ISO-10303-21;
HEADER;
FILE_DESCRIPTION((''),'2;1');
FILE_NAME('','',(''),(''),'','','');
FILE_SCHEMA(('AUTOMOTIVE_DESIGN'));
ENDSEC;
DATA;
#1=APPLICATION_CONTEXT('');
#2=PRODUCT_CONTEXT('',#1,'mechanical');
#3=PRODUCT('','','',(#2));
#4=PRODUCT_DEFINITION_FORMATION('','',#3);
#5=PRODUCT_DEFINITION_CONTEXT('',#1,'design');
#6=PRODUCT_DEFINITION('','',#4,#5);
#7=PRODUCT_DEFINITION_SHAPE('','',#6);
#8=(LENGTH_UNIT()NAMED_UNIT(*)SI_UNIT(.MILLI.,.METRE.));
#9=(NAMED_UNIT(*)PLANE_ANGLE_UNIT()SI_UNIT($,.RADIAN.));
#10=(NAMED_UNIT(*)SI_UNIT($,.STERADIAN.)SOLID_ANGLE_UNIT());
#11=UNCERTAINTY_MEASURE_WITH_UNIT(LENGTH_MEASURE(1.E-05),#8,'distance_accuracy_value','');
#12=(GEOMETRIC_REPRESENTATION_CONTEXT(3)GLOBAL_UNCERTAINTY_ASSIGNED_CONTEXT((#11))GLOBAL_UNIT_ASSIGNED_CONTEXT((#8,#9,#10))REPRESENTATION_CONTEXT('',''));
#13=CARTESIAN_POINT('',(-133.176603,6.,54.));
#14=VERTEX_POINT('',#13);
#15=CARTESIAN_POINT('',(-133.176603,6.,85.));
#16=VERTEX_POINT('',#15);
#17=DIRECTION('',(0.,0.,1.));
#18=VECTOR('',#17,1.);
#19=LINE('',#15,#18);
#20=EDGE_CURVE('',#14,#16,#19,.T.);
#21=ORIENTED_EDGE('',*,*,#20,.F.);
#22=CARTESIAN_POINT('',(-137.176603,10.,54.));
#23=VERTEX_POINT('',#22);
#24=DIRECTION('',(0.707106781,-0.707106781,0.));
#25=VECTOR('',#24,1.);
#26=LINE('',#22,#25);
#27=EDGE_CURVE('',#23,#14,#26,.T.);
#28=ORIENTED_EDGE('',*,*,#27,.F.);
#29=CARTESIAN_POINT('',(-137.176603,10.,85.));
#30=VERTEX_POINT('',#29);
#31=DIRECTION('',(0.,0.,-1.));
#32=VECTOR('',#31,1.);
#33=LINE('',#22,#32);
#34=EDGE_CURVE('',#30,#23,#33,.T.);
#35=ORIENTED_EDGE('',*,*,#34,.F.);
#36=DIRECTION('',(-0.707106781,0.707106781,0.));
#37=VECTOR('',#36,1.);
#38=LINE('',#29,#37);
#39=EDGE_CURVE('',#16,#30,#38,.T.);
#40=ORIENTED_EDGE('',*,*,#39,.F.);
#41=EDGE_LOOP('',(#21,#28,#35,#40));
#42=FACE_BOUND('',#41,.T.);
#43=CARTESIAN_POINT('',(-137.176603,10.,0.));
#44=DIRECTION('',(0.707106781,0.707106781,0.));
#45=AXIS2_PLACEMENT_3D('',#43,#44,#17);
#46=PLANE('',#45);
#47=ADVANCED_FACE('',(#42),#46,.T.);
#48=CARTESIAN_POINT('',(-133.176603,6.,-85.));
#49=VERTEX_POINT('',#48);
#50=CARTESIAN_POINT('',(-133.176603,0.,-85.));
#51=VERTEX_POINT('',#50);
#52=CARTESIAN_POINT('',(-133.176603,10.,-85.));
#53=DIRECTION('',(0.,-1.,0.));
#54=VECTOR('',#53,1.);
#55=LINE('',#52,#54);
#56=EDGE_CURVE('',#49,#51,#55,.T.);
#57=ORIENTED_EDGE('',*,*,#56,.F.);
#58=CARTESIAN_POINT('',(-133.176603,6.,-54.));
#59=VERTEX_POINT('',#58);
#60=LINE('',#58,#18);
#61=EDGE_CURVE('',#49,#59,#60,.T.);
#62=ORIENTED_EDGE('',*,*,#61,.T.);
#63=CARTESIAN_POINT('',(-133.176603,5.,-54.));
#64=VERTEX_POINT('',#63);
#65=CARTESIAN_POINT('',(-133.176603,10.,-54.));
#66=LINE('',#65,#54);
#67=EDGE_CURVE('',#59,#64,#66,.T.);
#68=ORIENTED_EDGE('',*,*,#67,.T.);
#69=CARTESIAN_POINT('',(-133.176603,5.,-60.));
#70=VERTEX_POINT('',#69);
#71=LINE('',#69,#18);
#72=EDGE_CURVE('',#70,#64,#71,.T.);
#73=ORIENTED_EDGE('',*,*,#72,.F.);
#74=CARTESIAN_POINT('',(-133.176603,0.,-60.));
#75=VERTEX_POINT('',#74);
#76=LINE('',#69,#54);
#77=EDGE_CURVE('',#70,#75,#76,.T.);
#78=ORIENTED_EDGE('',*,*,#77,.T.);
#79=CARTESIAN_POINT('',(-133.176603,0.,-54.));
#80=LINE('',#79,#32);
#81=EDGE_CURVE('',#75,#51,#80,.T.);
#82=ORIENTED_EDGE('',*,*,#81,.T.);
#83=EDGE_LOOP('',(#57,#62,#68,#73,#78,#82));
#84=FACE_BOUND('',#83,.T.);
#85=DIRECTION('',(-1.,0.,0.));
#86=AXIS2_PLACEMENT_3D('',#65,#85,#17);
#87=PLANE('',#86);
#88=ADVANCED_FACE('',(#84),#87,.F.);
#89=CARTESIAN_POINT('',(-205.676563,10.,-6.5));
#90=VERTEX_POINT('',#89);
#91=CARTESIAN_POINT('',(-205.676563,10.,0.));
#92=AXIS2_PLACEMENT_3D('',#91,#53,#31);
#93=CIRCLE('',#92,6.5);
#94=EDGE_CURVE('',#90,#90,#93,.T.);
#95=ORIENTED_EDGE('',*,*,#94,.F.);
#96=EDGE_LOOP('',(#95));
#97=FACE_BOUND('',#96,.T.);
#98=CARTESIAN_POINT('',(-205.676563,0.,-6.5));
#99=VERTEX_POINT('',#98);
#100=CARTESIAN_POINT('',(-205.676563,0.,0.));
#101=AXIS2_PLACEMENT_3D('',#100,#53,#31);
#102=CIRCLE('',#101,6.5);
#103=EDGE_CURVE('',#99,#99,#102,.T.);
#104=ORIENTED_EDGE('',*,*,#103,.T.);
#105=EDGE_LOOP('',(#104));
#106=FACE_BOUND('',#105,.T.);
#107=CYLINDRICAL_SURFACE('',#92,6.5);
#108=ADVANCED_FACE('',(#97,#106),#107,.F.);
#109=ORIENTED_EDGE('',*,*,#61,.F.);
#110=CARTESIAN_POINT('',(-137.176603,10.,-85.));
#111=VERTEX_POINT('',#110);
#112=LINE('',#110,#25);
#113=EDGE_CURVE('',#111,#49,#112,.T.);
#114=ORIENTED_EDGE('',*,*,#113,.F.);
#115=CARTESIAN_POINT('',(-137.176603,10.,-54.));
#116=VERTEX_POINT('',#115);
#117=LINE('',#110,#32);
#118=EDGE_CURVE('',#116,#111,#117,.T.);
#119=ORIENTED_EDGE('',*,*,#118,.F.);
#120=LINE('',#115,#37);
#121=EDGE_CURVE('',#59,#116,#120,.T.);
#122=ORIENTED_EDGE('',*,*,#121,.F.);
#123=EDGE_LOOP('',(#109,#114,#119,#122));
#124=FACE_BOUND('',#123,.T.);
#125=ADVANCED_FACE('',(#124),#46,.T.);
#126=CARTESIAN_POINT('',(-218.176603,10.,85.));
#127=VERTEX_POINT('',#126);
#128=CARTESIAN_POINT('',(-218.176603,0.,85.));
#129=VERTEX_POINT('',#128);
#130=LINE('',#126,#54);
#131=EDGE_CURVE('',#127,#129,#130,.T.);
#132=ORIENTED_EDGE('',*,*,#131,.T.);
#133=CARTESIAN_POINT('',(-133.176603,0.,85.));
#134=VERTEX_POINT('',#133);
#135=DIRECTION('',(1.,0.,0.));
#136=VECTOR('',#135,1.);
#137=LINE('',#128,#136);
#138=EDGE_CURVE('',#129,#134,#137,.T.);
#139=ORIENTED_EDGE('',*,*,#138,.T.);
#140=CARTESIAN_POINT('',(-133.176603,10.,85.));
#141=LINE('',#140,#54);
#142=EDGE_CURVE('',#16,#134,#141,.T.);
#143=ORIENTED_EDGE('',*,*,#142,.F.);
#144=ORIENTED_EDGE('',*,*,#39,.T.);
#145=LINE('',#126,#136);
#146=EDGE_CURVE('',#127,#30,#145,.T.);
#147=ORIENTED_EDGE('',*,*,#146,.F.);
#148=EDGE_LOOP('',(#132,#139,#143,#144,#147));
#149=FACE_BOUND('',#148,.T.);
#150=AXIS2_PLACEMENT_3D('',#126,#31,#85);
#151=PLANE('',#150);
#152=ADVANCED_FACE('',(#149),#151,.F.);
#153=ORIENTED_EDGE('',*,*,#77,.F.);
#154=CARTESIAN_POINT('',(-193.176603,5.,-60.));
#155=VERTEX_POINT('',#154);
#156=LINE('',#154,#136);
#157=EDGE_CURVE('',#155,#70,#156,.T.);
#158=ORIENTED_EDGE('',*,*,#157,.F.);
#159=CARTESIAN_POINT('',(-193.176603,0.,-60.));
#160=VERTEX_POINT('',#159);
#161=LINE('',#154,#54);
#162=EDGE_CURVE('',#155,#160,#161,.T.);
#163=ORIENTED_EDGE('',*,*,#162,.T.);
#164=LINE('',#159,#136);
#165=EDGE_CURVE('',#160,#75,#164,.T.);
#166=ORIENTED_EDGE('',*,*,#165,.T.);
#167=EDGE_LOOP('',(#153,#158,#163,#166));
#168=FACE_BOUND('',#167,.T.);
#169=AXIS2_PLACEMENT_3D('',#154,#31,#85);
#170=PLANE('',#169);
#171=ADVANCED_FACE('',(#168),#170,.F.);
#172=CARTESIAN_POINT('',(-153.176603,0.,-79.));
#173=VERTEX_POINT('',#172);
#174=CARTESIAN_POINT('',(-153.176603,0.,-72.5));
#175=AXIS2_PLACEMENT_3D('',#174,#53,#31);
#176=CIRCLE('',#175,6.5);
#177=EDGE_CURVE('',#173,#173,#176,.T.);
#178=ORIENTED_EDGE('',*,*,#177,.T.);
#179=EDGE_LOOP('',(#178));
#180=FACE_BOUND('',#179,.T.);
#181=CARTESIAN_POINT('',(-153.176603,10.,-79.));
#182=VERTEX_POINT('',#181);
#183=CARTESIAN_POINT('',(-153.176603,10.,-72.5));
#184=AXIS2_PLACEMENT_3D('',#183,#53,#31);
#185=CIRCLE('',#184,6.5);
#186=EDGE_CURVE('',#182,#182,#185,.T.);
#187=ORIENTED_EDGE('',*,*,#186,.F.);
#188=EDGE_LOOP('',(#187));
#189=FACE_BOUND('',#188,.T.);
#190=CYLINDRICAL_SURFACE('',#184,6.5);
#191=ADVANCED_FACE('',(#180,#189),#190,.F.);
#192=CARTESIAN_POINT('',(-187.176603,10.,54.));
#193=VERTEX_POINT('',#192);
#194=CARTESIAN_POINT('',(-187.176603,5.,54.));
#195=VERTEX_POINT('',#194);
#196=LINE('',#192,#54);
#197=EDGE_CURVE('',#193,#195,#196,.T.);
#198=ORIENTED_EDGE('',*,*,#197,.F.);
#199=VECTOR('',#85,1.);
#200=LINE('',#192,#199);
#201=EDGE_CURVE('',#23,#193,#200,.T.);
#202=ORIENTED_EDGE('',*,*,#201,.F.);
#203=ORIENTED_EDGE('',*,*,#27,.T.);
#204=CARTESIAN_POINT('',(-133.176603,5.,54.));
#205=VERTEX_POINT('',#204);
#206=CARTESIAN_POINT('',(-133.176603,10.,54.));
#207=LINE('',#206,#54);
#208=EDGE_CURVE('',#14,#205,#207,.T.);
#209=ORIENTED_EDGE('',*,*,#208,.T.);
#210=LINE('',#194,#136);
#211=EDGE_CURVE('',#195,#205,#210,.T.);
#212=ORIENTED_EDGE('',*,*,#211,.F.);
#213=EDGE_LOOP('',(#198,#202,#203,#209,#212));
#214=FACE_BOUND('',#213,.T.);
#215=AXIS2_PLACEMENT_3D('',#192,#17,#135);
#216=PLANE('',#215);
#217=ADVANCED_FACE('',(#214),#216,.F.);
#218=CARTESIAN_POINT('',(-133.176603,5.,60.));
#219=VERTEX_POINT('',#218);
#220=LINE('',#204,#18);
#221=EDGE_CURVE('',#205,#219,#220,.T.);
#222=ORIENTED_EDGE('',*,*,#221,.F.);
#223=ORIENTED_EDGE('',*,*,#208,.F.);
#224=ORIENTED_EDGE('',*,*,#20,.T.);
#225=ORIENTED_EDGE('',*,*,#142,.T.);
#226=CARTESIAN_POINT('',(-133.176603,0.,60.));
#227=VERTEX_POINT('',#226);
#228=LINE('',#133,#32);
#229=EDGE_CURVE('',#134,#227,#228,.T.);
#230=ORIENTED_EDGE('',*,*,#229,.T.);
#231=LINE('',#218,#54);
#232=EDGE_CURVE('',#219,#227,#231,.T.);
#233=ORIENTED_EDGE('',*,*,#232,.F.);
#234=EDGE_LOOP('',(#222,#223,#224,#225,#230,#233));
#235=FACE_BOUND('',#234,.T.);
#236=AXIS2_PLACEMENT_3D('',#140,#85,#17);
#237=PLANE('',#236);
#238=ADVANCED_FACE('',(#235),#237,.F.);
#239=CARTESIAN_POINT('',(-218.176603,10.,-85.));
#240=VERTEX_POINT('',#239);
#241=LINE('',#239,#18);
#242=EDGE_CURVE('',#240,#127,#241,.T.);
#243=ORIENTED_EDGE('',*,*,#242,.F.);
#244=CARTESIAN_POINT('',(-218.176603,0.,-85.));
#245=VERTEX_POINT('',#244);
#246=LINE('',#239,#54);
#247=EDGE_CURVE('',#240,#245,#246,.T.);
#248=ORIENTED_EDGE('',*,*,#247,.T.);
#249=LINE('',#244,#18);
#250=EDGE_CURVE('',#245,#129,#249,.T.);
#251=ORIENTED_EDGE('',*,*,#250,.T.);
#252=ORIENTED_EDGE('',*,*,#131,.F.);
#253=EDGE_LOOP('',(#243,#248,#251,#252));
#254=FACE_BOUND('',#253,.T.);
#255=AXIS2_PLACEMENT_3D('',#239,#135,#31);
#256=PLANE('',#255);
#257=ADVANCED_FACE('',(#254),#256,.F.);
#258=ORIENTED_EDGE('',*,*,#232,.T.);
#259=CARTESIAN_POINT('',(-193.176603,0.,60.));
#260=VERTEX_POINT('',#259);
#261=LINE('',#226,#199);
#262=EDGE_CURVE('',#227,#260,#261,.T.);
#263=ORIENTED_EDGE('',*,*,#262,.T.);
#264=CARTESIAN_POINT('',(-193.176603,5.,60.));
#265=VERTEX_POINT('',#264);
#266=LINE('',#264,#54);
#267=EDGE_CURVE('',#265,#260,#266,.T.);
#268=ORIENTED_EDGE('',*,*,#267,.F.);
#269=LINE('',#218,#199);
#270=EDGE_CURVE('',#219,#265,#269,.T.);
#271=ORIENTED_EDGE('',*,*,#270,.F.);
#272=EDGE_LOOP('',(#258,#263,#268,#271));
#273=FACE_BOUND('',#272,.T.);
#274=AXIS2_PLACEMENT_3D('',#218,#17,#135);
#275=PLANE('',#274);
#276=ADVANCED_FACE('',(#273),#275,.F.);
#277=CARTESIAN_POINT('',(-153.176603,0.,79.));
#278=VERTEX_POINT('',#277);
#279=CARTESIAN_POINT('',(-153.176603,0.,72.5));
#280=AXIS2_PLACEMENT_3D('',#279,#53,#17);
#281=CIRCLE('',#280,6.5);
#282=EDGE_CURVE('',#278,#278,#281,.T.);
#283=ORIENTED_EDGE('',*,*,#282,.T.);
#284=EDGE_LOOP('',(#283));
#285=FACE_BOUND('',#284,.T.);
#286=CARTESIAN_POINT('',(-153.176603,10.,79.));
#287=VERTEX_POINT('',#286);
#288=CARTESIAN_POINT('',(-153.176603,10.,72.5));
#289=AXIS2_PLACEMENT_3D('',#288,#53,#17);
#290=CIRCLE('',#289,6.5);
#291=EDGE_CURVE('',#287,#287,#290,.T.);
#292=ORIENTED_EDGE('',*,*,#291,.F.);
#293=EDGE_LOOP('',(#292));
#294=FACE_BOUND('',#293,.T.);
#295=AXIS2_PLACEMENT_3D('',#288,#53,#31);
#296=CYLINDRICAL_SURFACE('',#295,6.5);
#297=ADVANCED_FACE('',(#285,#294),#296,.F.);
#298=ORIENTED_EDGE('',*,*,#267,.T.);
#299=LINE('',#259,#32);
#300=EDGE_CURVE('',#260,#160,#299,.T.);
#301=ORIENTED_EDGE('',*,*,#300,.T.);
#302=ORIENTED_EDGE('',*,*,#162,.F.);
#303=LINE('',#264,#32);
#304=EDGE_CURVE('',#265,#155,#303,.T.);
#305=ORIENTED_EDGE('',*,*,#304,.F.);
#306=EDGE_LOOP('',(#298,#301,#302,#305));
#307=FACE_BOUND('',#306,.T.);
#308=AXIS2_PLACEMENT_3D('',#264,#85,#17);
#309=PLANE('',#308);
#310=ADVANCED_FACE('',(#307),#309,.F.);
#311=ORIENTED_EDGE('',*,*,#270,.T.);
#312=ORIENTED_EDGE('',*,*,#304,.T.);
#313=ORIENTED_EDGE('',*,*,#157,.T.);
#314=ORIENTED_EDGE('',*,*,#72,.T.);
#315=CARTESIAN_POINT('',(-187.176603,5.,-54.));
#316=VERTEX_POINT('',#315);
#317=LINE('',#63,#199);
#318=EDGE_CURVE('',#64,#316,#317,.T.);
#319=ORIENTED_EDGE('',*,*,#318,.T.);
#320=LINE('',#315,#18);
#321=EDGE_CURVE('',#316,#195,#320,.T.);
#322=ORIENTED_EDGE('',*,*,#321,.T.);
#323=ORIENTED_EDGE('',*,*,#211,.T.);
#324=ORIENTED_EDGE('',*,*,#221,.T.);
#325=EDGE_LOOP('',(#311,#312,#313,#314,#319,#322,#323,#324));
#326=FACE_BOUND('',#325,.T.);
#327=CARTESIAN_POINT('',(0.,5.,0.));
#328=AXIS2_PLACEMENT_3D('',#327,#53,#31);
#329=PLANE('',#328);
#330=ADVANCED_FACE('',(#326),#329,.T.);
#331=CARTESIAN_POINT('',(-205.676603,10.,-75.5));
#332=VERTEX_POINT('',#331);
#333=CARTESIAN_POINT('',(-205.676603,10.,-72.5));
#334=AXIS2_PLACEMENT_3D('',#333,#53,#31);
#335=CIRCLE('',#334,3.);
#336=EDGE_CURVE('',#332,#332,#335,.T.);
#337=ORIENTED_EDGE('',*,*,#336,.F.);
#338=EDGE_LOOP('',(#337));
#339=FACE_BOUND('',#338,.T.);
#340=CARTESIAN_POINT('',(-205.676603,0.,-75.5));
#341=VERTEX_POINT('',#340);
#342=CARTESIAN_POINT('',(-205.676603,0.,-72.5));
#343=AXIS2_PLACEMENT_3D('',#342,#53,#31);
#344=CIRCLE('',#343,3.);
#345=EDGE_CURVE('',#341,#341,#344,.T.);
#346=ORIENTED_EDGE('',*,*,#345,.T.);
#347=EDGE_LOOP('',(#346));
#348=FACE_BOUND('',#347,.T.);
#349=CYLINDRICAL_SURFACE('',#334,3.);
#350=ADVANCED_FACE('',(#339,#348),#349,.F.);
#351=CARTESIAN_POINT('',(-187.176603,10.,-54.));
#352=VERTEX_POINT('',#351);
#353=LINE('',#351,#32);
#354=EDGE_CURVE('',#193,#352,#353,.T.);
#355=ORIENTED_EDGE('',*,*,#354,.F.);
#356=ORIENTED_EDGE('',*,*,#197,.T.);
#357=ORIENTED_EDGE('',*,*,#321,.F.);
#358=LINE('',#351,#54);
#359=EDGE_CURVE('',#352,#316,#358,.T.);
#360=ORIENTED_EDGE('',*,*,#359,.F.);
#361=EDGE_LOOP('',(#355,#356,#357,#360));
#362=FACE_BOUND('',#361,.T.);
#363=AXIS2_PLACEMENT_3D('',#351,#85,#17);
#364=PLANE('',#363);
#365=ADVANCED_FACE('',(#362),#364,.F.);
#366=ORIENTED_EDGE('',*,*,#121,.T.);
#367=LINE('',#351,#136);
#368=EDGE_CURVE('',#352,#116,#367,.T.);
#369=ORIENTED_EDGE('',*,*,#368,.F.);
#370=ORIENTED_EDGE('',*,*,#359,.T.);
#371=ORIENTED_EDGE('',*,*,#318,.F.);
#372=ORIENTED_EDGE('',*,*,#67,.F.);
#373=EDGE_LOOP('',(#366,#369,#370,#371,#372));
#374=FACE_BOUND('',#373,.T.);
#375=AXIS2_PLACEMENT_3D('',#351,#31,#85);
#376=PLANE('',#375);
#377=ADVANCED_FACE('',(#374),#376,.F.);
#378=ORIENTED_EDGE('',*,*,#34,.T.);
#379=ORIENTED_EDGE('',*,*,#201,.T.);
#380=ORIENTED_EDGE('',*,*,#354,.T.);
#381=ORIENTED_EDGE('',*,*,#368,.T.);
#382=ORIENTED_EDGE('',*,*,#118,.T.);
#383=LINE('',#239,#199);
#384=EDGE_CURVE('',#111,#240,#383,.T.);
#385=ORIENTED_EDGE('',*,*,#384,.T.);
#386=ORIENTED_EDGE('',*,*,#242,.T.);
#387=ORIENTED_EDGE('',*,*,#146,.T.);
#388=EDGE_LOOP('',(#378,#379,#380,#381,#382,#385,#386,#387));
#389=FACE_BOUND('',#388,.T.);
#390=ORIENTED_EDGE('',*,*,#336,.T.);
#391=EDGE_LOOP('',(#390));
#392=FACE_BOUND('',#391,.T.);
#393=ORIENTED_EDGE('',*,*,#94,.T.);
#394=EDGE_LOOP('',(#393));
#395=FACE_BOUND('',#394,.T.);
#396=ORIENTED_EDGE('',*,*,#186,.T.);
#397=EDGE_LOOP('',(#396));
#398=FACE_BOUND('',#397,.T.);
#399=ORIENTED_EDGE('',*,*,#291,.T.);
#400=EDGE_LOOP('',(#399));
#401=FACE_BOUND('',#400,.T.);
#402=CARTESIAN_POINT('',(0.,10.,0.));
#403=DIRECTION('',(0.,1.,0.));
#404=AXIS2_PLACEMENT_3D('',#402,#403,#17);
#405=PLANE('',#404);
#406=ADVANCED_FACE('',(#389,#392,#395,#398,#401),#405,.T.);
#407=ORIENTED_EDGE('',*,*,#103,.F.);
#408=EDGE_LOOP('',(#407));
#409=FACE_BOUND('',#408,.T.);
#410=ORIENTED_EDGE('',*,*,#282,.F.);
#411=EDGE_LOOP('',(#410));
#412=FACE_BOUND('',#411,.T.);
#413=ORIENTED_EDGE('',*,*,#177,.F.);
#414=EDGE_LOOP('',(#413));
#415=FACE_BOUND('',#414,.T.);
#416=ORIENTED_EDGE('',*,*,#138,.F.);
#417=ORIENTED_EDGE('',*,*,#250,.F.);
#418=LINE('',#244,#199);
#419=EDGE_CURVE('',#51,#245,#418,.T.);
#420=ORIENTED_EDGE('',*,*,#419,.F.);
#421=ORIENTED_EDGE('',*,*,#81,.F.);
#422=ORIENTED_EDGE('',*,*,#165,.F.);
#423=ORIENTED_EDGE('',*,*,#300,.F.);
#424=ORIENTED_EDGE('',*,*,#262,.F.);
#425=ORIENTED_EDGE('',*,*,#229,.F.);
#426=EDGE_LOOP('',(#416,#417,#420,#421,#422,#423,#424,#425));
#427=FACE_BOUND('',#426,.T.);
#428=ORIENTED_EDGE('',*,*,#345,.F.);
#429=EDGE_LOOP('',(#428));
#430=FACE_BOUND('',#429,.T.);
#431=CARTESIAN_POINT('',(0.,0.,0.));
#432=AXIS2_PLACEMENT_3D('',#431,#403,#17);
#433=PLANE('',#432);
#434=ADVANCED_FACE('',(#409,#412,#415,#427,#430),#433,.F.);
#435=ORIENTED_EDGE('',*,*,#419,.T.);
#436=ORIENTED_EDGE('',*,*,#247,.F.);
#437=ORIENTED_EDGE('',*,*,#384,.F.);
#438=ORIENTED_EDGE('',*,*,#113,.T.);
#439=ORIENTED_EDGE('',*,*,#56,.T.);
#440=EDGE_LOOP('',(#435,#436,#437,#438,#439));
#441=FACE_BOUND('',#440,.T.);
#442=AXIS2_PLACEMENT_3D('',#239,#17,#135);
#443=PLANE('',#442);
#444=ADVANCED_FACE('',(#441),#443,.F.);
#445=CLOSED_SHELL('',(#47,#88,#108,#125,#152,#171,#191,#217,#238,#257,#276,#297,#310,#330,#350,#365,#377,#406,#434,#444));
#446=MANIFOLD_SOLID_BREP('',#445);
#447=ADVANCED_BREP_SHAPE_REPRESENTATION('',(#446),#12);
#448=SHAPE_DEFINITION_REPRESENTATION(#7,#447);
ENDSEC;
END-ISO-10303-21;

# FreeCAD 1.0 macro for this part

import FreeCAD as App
import Part
import Sketcher

V = App.Vector
Q = App.Units.Quantity


def edges_at(feature, points):
    """Names of the edges that pass closest to the given points."""
    edges = feature.Shape.Edges
    near = lambda p: min(range(len(edges)), key=lambda i: edges[i].distToShape(Part.Vertex(*p))[0])
    return sorted({f"Edge{near(p) + 1}" for p in points})

doc = App.newDocument("Part")
body = doc.addObject("PartDesign::Body", "Body")

# Sketch on XZ plane
sketch1 = doc.addObject("Sketcher::SketchObject", "Sketch")
body.addObject(sketch1)
sketch1.AttachmentSupport = (doc.XZ_Plane, [""])
sketch1.MapMode = "FlatFace"
sketch1.addGeometry([
    Part.LineSegment(V(-133, 85, 0), V(-133, 54, 0)),  # 0
    Part.LineSegment(V(-133, 54, 0), V(-187, 54, 0)),  # 1
    Part.LineSegment(V(-187, 54, 0), V(-187, -54, 0)),  # 2
    Part.LineSegment(V(-187, -54, 0), V(-133, -54, 0)),  # 3
    Part.LineSegment(V(-133, -54, 0), V(-133, -85, 0)),  # 4
    Part.LineSegment(V(-133, -85, 0), V(-218, -85, 0)),  # 5
    Part.LineSegment(V(-218, -85, 0), V(-218, 85, 0)),  # 6
    Part.LineSegment(V(-218, 85, 0), V(-133, 85, 0)),  # 7
], False)
sketch1.addConstraint([
    Sketcher.Constraint("Coincident", 0, 2, 1, 1),
    Sketcher.Constraint("Coincident", 1, 2, 2, 1),
    Sketcher.Constraint("Coincident", 2, 2, 3, 1),
    Sketcher.Constraint("Coincident", 3, 2, 4, 1),
    Sketcher.Constraint("Coincident", 4, 2, 5, 1),
    Sketcher.Constraint("Coincident", 5, 2, 6, 1),
    Sketcher.Constraint("Coincident", 6, 2, 7, 1),
    Sketcher.Constraint("Coincident", 7, 2, 0, 1),
    Sketcher.Constraint("Vertical", 0),
    Sketcher.Constraint("Horizontal", 1),
    Sketcher.Constraint("Vertical", 2),
    Sketcher.Constraint("Horizontal", 3),
    Sketcher.Constraint("Vertical", 4),
    Sketcher.Constraint("Horizontal", 5),
    Sketcher.Constraint("Vertical", 6),
    Sketcher.Constraint("Horizontal", 7),
    Sketcher.Constraint("Symmetric", 0, 2, 3, 2, -1),
    Sketcher.Constraint("Equal", 0, 4),
    Sketcher.Constraint("DistanceX", 1, 2, 1, 1, Q("54 mm")),
    Sketcher.Constraint("DistanceX", 5, 2, 5, 1, Q("85 mm")),
    Sketcher.Constraint("DistanceY", 0, 2, 0, 1, Q("31 mm")),
    Sketcher.Constraint("DistanceY", 2, 2, 2, 1, Q("108 mm")),
    Sketcher.Constraint("DistanceX", 0, 2, -1, 1, Q("133.176603 mm")),
])
pad1 = doc.addObject("PartDesign::Pad", "Pad")
body.addObject(pad1)
pad1.Profile = sketch1
pad1.Length = 10
pad1.Reversed = True

# Sketch on XZ plane
sketch2 = doc.addObject("Sketcher::SketchObject", "Sketch001")
body.addObject(sketch2)
sketch2.AttachmentSupport = (doc.XZ_Plane, [""])
sketch2.MapMode = "FlatFace"
sketch2.addGeometry([
    Part.LineSegment(V(-133, 60, 0), V(-193, 60, 0)),  # 0
    Part.LineSegment(V(-193, 60, 0), V(-193, -60, 0)),  # 1
    Part.LineSegment(V(-193, -60, 0), V(-133, -60, 0)),  # 2
    Part.LineSegment(V(-133, -60, 0), V(-133, -54, 0)),  # 3
    Part.LineSegment(V(-133, -54, 0), V(-187, -54, 0)),  # 4
    Part.LineSegment(V(-187, -54, 0), V(-187, 54, 0)),  # 5
    Part.LineSegment(V(-187, 54, 0), V(-133, 54, 0)),  # 6
    Part.LineSegment(V(-133, 54, 0), V(-133, 60, 0)),  # 7
], False)
sketch2.addConstraint([
    Sketcher.Constraint("Coincident", 0, 2, 1, 1),
    Sketcher.Constraint("Coincident", 1, 2, 2, 1),
    Sketcher.Constraint("Coincident", 2, 2, 3, 1),
    Sketcher.Constraint("Coincident", 3, 2, 4, 1),
    Sketcher.Constraint("Coincident", 4, 2, 5, 1),
    Sketcher.Constraint("Coincident", 5, 2, 6, 1),
    Sketcher.Constraint("Coincident", 6, 2, 7, 1),
    Sketcher.Constraint("Coincident", 7, 2, 0, 1),
    Sketcher.Constraint("Horizontal", 0),
    Sketcher.Constraint("Vertical", 1),
    Sketcher.Constraint("Horizontal", 2),
    Sketcher.Constraint("Vertical", 3),
    Sketcher.Constraint("Horizontal", 4),
    Sketcher.Constraint("Vertical", 5),
    Sketcher.Constraint("Horizontal", 6),
    Sketcher.Constraint("Vertical", 7),
    Sketcher.Constraint("Symmetric", 3, 2, 6, 2, -1),
    Sketcher.Constraint("Equal", 3, 7),
    Sketcher.Constraint("DistanceX", 0, 2, 0, 1, Q("60 mm")),
    Sketcher.Constraint("DistanceX", 4, 2, 4, 1, Q("54 mm")),
    Sketcher.Constraint("DistanceY", 1, 2, 1, 1, Q("120 mm")),
    Sketcher.Constraint("DistanceY", 3, 1, 3, 2, Q("6 mm")),
    Sketcher.Constraint("DistanceX", 0, 2, -1, 1, Q("193.176603 mm")),
])
pocket1 = doc.addObject("PartDesign::Pocket", "Pocket")
body.addObject(pocket1)
pocket1.Profile = sketch2
pocket1.Length = 5
doc.recompute()

chamfer = doc.addObject("PartDesign::Chamfer", "Chamfer")
body.addObject(chamfer)
chamfer.Base = (pocket1, edges_at(pocket1, [(-133.177, 10, 69.5), (-133.177, 10, -69.5)]))
chamfer.Size = 4

# Sketch on XZ plane
sketch3 = doc.addObject("Sketcher::SketchObject", "Sketch002")
body.addObject(sketch3)
sketch3.AttachmentSupport = (doc.XZ_Plane, [""])
sketch3.MapMode = "FlatFace"
sketch3.addGeometry([
    Part.Circle(V(-153, -72, 0), V(0, 0, 1), 6),
    Part.Circle(V(-153, 72, 0), V(0, 0, 1), 6),
    Part.Circle(V(-206, 0, 0), V(0, 0, 1), 6),
], False)
sketch3.addConstraint([
    Sketcher.Constraint("Equal", 0, 1),
    Sketcher.Constraint("Equal", 1, 2),
    Sketcher.Constraint("Symmetric", 0, 3, 1, 3, -1),
    Sketcher.Constraint("PointOnObject", 2, 3, -1),
    Sketcher.Constraint("Diameter", 0, Q("13 mm")),
    Sketcher.Constraint("DistanceY", 0, 3, 1, 3, Q("145 mm")),
    Sketcher.Constraint("DistanceX", 2, 3, 0, 3, Q("52.49996 mm")),
    Sketcher.Constraint("DistanceX", 0, 3, -1, 1, Q("153.176603 mm")),
])
pocket2 = doc.addObject("PartDesign::Pocket", "Pocket001")
body.addObject(pocket2)
pocket2.Profile = sketch3
pocket2.Type = "ThroughAll"

# Sketch on XZ plane
sketch4 = doc.addObject("Sketcher::SketchObject", "Sketch003")
body.addObject(sketch4)
sketch4.AttachmentSupport = (doc.XZ_Plane, [""])
sketch4.MapMode = "FlatFace"
sketch4.addGeometry(Part.Circle(V(-205.7, -72.5, 0), V(0, 0, 1), 3), False)
sketch4.addConstraint([
    Sketcher.Constraint("Diameter", 0, Q("6 mm")),
    Sketcher.Constraint("DistanceY", 0, 3, -1, 1, Q("72.5 mm")),
    Sketcher.Constraint("DistanceX", 0, 3, -1, 1, Q("205.676603 mm")),
])
pocket3 = doc.addObject("PartDesign::Pocket", "Pocket002")
body.addObject(pocket3)
pocket3.Profile = sketch4
pocket3.Type = "ThroughAll"

doc.recompute()
